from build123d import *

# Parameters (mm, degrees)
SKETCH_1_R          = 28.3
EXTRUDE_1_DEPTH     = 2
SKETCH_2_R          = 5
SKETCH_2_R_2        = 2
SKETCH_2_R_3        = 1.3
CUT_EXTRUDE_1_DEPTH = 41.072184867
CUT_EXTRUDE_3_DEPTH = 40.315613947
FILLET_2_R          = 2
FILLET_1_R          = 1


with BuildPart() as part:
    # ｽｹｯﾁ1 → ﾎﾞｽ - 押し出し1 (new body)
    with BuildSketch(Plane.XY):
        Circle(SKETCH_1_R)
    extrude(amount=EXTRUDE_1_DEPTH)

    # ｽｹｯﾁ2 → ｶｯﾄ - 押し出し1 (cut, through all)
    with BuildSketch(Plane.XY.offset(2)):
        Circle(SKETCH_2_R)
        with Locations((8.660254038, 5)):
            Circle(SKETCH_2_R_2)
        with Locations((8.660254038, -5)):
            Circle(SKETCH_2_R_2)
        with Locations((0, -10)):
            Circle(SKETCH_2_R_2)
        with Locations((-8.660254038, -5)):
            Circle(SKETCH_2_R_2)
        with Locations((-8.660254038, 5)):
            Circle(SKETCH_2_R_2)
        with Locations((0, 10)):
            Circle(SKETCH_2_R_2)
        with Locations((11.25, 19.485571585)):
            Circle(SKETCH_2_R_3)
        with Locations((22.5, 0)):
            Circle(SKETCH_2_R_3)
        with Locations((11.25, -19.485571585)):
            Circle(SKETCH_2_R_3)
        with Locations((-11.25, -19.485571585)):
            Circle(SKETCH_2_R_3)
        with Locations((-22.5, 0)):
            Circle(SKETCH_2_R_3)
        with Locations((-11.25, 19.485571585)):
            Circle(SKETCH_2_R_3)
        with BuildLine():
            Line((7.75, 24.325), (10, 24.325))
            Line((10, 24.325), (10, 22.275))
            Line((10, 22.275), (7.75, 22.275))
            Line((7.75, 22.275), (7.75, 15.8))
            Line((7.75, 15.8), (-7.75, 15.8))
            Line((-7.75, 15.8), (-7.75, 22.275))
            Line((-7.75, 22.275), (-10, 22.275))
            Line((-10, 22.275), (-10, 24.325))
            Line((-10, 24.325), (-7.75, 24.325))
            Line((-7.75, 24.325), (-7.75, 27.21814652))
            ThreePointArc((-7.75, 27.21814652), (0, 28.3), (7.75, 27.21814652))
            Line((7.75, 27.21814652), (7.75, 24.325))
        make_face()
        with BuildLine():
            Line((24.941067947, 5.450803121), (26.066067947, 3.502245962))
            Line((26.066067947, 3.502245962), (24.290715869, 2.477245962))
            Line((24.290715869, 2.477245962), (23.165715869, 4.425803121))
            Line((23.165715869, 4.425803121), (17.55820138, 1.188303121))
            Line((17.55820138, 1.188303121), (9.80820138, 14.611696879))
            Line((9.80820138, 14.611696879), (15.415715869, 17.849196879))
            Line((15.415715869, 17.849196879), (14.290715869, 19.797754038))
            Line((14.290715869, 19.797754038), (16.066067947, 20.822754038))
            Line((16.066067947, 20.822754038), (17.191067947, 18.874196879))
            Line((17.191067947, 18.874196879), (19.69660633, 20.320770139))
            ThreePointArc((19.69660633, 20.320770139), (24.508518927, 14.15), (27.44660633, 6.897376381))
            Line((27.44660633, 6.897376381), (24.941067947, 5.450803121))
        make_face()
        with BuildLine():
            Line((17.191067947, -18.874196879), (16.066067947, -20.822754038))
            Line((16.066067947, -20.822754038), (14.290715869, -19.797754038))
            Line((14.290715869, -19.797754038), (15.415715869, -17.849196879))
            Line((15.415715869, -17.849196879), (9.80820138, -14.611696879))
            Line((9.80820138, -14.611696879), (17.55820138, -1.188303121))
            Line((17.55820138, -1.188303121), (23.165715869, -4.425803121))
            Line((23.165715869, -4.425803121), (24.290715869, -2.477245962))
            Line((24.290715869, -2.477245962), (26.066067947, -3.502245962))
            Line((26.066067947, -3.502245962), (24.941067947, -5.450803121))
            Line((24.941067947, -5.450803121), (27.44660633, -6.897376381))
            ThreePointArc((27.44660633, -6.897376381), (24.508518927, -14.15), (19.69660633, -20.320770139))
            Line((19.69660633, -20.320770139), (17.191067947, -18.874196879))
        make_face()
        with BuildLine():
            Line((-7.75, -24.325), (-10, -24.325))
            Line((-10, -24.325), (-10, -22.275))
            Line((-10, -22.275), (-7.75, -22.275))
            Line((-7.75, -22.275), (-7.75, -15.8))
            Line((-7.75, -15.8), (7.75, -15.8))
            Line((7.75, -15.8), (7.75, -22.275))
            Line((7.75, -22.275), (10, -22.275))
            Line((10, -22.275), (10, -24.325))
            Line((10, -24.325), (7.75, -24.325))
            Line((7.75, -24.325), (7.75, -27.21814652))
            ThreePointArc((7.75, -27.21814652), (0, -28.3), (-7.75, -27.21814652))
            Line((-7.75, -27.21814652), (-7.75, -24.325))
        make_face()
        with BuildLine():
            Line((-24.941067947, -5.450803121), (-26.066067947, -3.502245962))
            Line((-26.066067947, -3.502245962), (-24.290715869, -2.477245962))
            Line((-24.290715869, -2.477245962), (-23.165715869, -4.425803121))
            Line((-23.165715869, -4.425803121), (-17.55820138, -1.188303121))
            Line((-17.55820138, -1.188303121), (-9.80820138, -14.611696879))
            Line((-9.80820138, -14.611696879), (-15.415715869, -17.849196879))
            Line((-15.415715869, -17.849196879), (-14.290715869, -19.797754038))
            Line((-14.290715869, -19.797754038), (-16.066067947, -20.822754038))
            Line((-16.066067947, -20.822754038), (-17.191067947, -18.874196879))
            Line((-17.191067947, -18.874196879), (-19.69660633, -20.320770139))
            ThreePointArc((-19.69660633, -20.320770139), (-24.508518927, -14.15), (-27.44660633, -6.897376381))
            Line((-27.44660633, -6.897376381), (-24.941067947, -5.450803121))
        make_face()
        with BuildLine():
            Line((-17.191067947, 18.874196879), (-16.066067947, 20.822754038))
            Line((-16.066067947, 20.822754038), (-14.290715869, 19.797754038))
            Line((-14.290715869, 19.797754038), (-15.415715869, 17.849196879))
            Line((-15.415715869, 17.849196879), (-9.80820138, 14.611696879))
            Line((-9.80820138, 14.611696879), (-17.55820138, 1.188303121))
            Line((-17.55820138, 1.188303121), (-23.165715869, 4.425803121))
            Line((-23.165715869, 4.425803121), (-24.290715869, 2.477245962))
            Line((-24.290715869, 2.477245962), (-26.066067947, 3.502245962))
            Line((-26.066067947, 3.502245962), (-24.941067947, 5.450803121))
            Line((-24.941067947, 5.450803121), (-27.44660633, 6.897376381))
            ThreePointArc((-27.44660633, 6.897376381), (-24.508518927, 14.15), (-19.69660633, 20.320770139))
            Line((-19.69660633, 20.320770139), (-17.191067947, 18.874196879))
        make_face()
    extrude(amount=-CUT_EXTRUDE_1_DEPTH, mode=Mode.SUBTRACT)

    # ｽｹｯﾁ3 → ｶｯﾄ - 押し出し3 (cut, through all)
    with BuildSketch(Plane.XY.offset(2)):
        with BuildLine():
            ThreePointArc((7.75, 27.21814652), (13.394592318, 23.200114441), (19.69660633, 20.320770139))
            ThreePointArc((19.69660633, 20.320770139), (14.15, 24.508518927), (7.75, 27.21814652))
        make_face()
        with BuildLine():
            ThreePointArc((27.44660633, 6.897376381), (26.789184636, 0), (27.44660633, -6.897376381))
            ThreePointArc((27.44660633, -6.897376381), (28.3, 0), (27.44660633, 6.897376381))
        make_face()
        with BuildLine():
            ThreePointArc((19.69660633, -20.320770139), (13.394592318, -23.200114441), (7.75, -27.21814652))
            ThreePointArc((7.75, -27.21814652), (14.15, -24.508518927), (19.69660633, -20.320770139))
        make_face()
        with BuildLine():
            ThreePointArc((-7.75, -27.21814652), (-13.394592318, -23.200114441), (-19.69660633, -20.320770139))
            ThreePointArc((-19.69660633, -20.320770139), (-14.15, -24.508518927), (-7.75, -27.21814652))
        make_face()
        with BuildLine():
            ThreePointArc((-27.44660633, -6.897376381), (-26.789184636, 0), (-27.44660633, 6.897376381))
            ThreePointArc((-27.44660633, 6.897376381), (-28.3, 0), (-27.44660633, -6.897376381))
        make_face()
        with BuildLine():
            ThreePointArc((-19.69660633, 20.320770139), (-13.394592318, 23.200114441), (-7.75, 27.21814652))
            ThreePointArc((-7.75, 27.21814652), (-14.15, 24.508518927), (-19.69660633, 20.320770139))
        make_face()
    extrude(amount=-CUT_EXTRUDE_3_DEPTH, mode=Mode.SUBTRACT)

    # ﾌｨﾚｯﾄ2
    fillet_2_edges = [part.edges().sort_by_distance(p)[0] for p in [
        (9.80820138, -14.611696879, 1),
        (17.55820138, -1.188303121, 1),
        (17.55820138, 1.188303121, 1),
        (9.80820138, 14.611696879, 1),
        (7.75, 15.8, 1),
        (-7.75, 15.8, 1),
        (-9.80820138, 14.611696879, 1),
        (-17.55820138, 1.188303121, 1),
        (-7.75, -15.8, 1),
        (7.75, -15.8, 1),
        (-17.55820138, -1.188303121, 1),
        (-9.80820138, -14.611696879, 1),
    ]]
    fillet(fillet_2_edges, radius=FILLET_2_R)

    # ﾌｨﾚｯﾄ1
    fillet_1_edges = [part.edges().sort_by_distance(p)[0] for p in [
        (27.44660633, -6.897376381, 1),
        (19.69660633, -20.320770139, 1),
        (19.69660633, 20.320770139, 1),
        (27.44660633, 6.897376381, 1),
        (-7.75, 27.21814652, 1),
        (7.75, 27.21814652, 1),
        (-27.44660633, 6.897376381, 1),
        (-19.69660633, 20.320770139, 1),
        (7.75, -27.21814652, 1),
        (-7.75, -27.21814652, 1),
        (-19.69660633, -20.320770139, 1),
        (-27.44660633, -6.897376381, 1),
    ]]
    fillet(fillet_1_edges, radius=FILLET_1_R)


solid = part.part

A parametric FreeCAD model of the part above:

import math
import FreeCAD as App
import Part
import Sketcher

V = App.Vector
Q = App.Units.Quantity


def edges_at(feature, points):
    """Names of the edges that pass closest to the given points."""
    edges = feature.Shape.Edges
    near = lambda p: min(range(len(edges)), key=lambda i: edges[i].distToShape(Part.Vertex(*p))[0])
    return sorted({f"Edge{near(p) + 1}" for p in points})

doc = App.newDocument("Part")
body = doc.addObject("PartDesign::Body", "Body")

# Sketch on XY plane
sketch1 = doc.addObject("Sketcher::SketchObject", "Sketch")
body.addObject(sketch1)
sketch1.AttachmentSupport = (doc.XY_Plane, [""])
sketch1.MapMode = "FlatFace"
sketch1.addGeometry(Part.Circle(V(0, 0, 0), V(0, 0, 1), 28.3), False)
sketch1.addConstraint([
    Sketcher.Constraint("Coincident", 0, 3, -1, 1),
    Sketcher.Constraint("Diameter", 0, 56.6),
])
pad1 = doc.addObject("PartDesign::Pad", "Pad")
body.addObject(pad1)
pad1.Profile = sketch1
pad1.Length = 2

# Sketch on XY plane
sketch2 = doc.addObject("Sketcher::SketchObject", "Sketch001")
body.addObject(sketch2)
sketch2.AttachmentSupport = (doc.XY_Plane, [""])
sketch2.MapMode = "FlatFace"
sketch2.AttachmentOffset = App.Placement(V(0, 0, 2), App.Rotation())
sketch2.addGeometry([
    Part.Circle(V(0, 0, 0), V(0, 0, 1), 5),  # 0
    Part.Circle(V(8.660254, 5, 0), V(0, 0, 1), 2),  # 1
    Part.Circle(V(8.660254, -5, 0), V(0, 0, 1), 2),  # 2
    Part.Circle(V(0, -10, 0), V(0, 0, 1), 2),  # 3
    Part.Circle(V(-8.660254, -5, 0), V(0, 0, 1), 2),  # 4
    Part.Circle(V(-8.660254, 5, 0), V(0, 0, 1), 2),  # 5
    Part.Circle(V(0, 10, 0), V(0, 0, 1), 2),  # 6
    Part.Circle(V(11.25, 19.485572, 0), V(0, 0, 1), 1.3),  # 7
    Part.Circle(V(22.5, 0, 0), V(0, 0, 1), 1.3),  # 8
    Part.Circle(V(11.25, -19.485572, 0), V(0, 0, 1), 1.3),  # 9
    Part.Circle(V(-11.25, -19.485572, 0), V(0, 0, 1), 1.3),  # 10
    Part.Circle(V(-22.5, 0, 0), V(0, 0, 1), 1.3),  # 11
    Part.Circle(V(-11.25, 19.485572, 0), V(0, 0, 1), 1.3),  # 12
    Part.LineSegment(V(10, 24.325, 0), V(7.75, 24.325, 0)),  # 13
    Part.LineSegment(V(7.75, 24.325, 0), V(7.75, 27.218147, 0)),  # 14
    Part.ArcOfCircle(Part.Circle(V(0, 0, 0), V(0, 0, 1), 28.3), math.radians(74.106412), math.radians(105.893588)),  # 15
    Part.LineSegment(V(-7.75, 27.218147, 0), V(-7.75, 24.325, 0)),  # 16
    Part.LineSegment(V(-7.75, 24.325, 0), V(-10, 24.325, 0)),  # 17
    Part.LineSegment(V(-10, 24.325, 0), V(-10, 22.275, 0)),  # 18
    Part.LineSegment(V(-10, 22.275, 0), V(-7.75, 22.275, 0)),  # 19
    Part.LineSegment(V(-7.75, 22.275, 0), V(-7.75, 15.8, 0)),  # 20
    Part.LineSegment(V(-7.75, 15.8, 0), V(7.75, 15.8, 0)),  # 21
    Part.LineSegment(V(7.75, 15.8, 0), V(7.75, 22.275, 0)),  # 22
    Part.LineSegment(V(7.75, 22.275, 0), V(10, 22.275, 0)),  # 23
    Part.LineSegment(V(10, 22.275, 0), V(10, 24.325, 0)),  # 24
    Part.LineSegment(V(26.066068, 3.502246, 0), V(24.941068, 5.450803, 0)),  # 25
    Part.LineSegment(V(24.941068, 5.450803, 0), V(27.446606, 6.897376, 0)),  # 26
    Part.ArcOfCircle(Part.Circle(V(0, 0, 0), V(0, 0, 1), 28.3), math.radians(14.106412), math.radians(45.893588)),  # 27
    Part.LineSegment(V(19.696606, 20.32077, 0), V(17.191068, 18.874197, 0)),  # 28
    Part.LineSegment(V(17.191068, 18.874197, 0), V(16.066068, 20.822754, 0)),  # 29
    Part.LineSegment(V(16.066068, 20.822754, 0), V(14.290716, 19.797754, 0)),  # 30
    Part.LineSegment(V(14.290716, 19.797754, 0), V(15.415716, 17.849197, 0)),  # 31
    Part.LineSegment(V(15.415716, 17.849197, 0), V(9.808201, 14.611697, 0)),  # 32
    Part.LineSegment(V(9.808201, 14.611697, 0), V(17.558201, 1.188303, 0)),  # 33
    Part.LineSegment(V(17.558201, 1.188303, 0), V(23.165716, 4.425803, 0)),  # 34
    Part.LineSegment(V(23.165716, 4.425803, 0), V(24.290716, 2.477246, 0)),  # 35
    Part.LineSegment(V(24.290716, 2.477246, 0), V(26.066068, 3.502246, 0)),  # 36
    Part.LineSegment(V(16.066068, -20.822754, 0), V(17.191068, -18.874197, 0)),  # 37
    Part.LineSegment(V(17.191068, -18.874197, 0), V(19.696606, -20.32077, 0)),  # 38
    Part.ArcOfCircle(Part.Circle(V(0, 0, 0), V(0, 0, 1), 28.3), math.radians(-45.893588), math.radians(-14.106412)),  # 39
    Part.LineSegment(V(27.446606, -6.897376, 0), V(24.941068, -5.450803, 0)),  # 40
    Part.LineSegment(V(24.941068, -5.450803, 0), V(26.066068, -3.502246, 0)),  # 41
    Part.LineSegment(V(26.066068, -3.502246, 0), V(24.290716, -2.477246, 0)),  # 42
    Part.LineSegment(V(24.290716, -2.477246, 0), V(23.165716, -4.425803, 0)),  # 43
    Part.LineSegment(V(23.165716, -4.425803, 0), V(17.558201, -1.188303, 0)),  # 44
    Part.LineSegment(V(17.558201, -1.188303, 0), V(9.808201, -14.611697, 0)),  # 45
    Part.LineSegment(V(9.808201, -14.611697, 0), V(15.415716, -17.849197, 0)),  # 46
    Part.LineSegment(V(15.415716, -17.849197, 0), V(14.290716, -19.797754, 0)),  # 47
    Part.LineSegment(V(14.290716, -19.797754, 0), V(16.066068, -20.822754, 0)),  # 48
    Part.LineSegment(V(-10, -24.325, 0), V(-7.75, -24.325, 0)),  # 49
    Part.LineSegment(V(-7.75, -24.325, 0), V(-7.75, -27.218147, 0)),  # 50
    Part.ArcOfCircle(Part.Circle(V(0, 0, 0), V(0, 0, 1), 28.3), math.radians(-105.893588), math.radians(-74.106412)),  # 51
    Part.LineSegment(V(7.75, -27.218147, 0), V(7.75, -24.325, 0)),  # 52
    Part.LineSegment(V(7.75, -24.325, 0), V(10, -24.325, 0)),  # 53
    Part.LineSegment(V(10, -24.325, 0), V(10, -22.275, 0)),  # 54
    Part.LineSegment(V(10, -22.275, 0), V(7.75, -22.275, 0)),  # 55
    Part.LineSegment(V(7.75, -22.275, 0), V(7.75, -15.8, 0)),  # 56
    Part.LineSegment(V(7.75, -15.8, 0), V(-7.75, -15.8, 0)),  # 57
    Part.LineSegment(V(-7.75, -15.8, 0), V(-7.75, -22.275, 0)),  # 58
    Part.LineSegment(V(-7.75, -22.275, 0), V(-10, -22.275, 0)),  # 59
    Part.LineSegment(V(-10, -22.275, 0), V(-10, -24.325, 0)),  # 60
    Part.LineSegment(V(-26.066068, -3.502246, 0), V(-24.941068, -5.450803, 0)),  # 61
    Part.LineSegment(V(-24.941068, -5.450803, 0), V(-27.446606, -6.897376, 0)),  # 62
    Part.ArcOfCircle(Part.Circle(V(0, 0, 0), V(0, 0, 1), 28.3), math.radians(-165.893588), math.radians(-134.106412)),  # 63
    Part.LineSegment(V(-19.696606, -20.32077, 0), V(-17.191068, -18.874197, 0)),  # 64
    Part.LineSegment(V(-17.191068, -18.874197, 0), V(-16.066068, -20.822754, 0)),  # 65
    Part.LineSegment(V(-16.066068, -20.822754, 0), V(-14.290716, -19.797754, 0)),  # 66
    Part.LineSegment(V(-14.290716, -19.797754, 0), V(-15.415716, -17.849197, 0)),  # 67
    Part.LineSegment(V(-15.415716, -17.849197, 0), V(-9.808201, -14.611697, 0)),  # 68
    Part.LineSegment(V(-9.808201, -14.611697, 0), V(-17.558201, -1.188303, 0)),  # 69
    Part.LineSegment(V(-17.558201, -1.188303, 0), V(-23.165716, -4.425803, 0)),  # 70
    Part.LineSegment(V(-23.165716, -4.425803, 0), V(-24.290716, -2.477246, 0)),  # 71
    Part.LineSegment(V(-24.290716, -2.477246, 0), V(-26.066068, -3.502246, 0)),  # 72
    Part.LineSegment(V(-16.066068, 20.822754, 0), V(-17.191068, 18.874197, 0)),  # 73
    Part.LineSegment(V(-17.191068, 18.874197, 0), V(-19.696606, 20.32077, 0)),  # 74
    Part.ArcOfCircle(Part.Circle(V(0, 0, 0), V(0, 0, 1), 28.3), math.radians(134.106412), math.radians(165.893588)),  # 75
    Part.LineSegment(V(-27.446606, 6.897376, 0), V(-24.941068, 5.450803, 0)),  # 76
    Part.LineSegment(V(-24.941068, 5.450803, 0), V(-26.066068, 3.502246, 0)),  # 77
    Part.LineSegment(V(-26.066068, 3.502246, 0), V(-24.290716, 2.477246, 0)),  # 78
    Part.LineSegment(V(-24.290716, 2.477246, 0), V(-23.165716, 4.425803, 0)),  # 79
    Part.LineSegment(V(-23.165716, 4.425803, 0), V(-17.558201, 1.188303, 0)),  # 80
    Part.LineSegment(V(-17.558201, 1.188303, 0), V(-9.808201, 14.611697, 0)),  # 81
    Part.LineSegment(V(-9.808201, 14.611697, 0), V(-15.415716, 17.849197, 0)),  # 82
    Part.LineSegment(V(-15.415716, 17.849197, 0), V(-14.290716, 19.797754, 0)),  # 83
    Part.LineSegment(V(-14.290716, 19.797754, 0), V(-16.066068, 20.822754, 0)),  # 84
], False)
sketch2.addConstraint([
    Sketcher.Constraint("Coincident", 13, 2, 14, 1),
    Sketcher.Constraint("Coincident", 14, 2, 15, 1),
    Sketcher.Constraint("Coincident", 15, 2, 16, 1),
    Sketcher.Constraint("Coincident", 16, 2, 17, 1),
    Sketcher.Constraint("Coincident", 17, 2, 18, 1),
    Sketcher.Constraint("Coincident", 18, 2, 19, 1),
    Sketcher.Constraint("Coincident", 19, 2, 20, 1),
    Sketcher.Constraint("Coincident", 20, 2, 21, 1),
    Sketcher.Constraint("Coincident", 21, 2, 22, 1),
    Sketcher.Constraint("Coincident", 22, 2, 23, 1),
    Sketcher.Constraint("Coincident", 23, 2, 24, 1),
    Sketcher.Constraint("Coincident", 24, 2, 13, 1),
    Sketcher.Constraint("Coincident", 25, 2, 26, 1),
    Sketcher.Constraint("Coincident", 26, 2, 27, 1),
    Sketcher.Constraint("Coincident", 27, 2, 28, 1),
    Sketcher.Constraint("Coincident", 28, 2, 29, 1),
    Sketcher.Constraint("Coincident", 29, 2, 30, 1),
    Sketcher.Constraint("Coincident", 30, 2, 31, 1),
    Sketcher.Constraint("Coincident", 31, 2, 32, 1),
    Sketcher.Constraint("Coincident", 32, 2, 33, 1),
    Sketcher.Constraint("Coincident", 33, 2, 34, 1),
    Sketcher.Constraint("Coincident", 34, 2, 35, 1),
    Sketcher.Constraint("Coincident", 35, 2, 36, 1),
    Sketcher.Constraint("Coincident", 36, 2, 25, 1),
    Sketcher.Constraint("Coincident", 37, 2, 38, 1),
    Sketcher.Constraint("Coincident", 38, 2, 39, 1),
    Sketcher.Constraint("Coincident", 39, 2, 40, 1),
    Sketcher.Constraint("Coincident", 40, 2, 41, 1),
    Sketcher.Constraint("Coincident", 41, 2, 42, 1),
    Sketcher.Constraint("Coincident", 42, 2, 43, 1),
    Sketcher.Constraint("Coincident", 43, 2, 44, 1),
    Sketcher.Constraint("Coincident", 44, 2, 45, 1),
    Sketcher.Constraint("Coincident", 45, 2, 46, 1),
    Sketcher.Constraint("Coincident", 46, 2, 47, 1),
    Sketcher.Constraint("Coincident", 47, 2, 48, 1),
    Sketcher.Constraint("Coincident", 48, 2, 37, 1),
    Sketcher.Constraint("Coincident", 49, 2, 50, 1),
    Sketcher.Constraint("Coincident", 50, 2, 51, 1),
    Sketcher.Constraint("Coincident", 51, 2, 52, 1),
    Sketcher.Constraint("Coincident", 52, 2, 53, 1),
    Sketcher.Constraint("Coincident", 53, 2, 54, 1),
    Sketcher.Constraint("Coincident", 54, 2, 55, 1),
    Sketcher.Constraint("Coincident", 55, 2, 56, 1),
    Sketcher.Constraint("Coincident", 56, 2, 57, 1),
    Sketcher.Constraint("Coincident", 57, 2, 58, 1),
    Sketcher.Constraint("Coincident", 58, 2, 59, 1),
    Sketcher.Constraint("Coincident", 59, 2, 60, 1),
    Sketcher.Constraint("Coincident", 60, 2, 49, 1),
    Sketcher.Constraint("Coincident", 61, 2, 62, 1),
    Sketcher.Constraint("Coincident", 62, 2, 63, 1),
    Sketcher.Constraint("Coincident", 63, 2, 64, 1),
    Sketcher.Constraint("Coincident", 64, 2, 65, 1),
    Sketcher.Constraint("Coincident", 65, 2, 66, 1),
    Sketcher.Constraint("Coincident", 66, 2, 67, 1),
    Sketcher.Constraint("Coincident", 67, 2, 68, 1),
    Sketcher.Constraint("Coincident", 68, 2, 69, 1),
    Sketcher.Constraint("Coincident", 69, 2, 70, 1),
    Sketcher.Constraint("Coincident", 70, 2, 71, 1),
    Sketcher.Constraint("Coincident", 71, 2, 72, 1),
    Sketcher.Constraint("Coincident", 72, 2, 61, 1),
    Sketcher.Constraint("Coincident", 73, 2, 74, 1),
    Sketcher.Constraint("Coincident", 74, 2, 75, 1),
    Sketcher.Constraint("Coincident", 75, 2, 76, 1),
    Sketcher.Constraint("Coincident", 76, 2, 77, 1),
    Sketcher.Constraint("Coincident", 77, 2, 78, 1),
    Sketcher.Constraint("Coincident", 78, 2, 79, 1),
    Sketcher.Constraint("Coincident", 79, 2, 80, 1),
    Sketcher.Constraint("Coincident", 80, 2, 81, 1),
    Sketcher.Constraint("Coincident", 81, 2, 82, 1),
    Sketcher.Constraint("Coincident", 82, 2, 83, 1),
    Sketcher.Constraint("Coincident", 83, 2, 84, 1),
    Sketcher.Constraint("Coincident", 84, 2, 73, 1),
    Sketcher.Constraint("Horizontal", 13),
    Sketcher.Constraint("Vertical", 14),
    Sketcher.Constraint("Vertical", 16),
    Sketcher.Constraint("Horizontal", 17),
    Sketcher.Constraint("Vertical", 18),
    Sketcher.Constraint("Horizontal", 19),
    Sketcher.Constraint("Vertical", 20),
    Sketcher.Constraint("Horizontal", 21),
    Sketcher.Constraint("Vertical", 22),
    Sketcher.Constraint("Horizontal", 23),
    Sketcher.Constraint("Vertical", 24),
    Sketcher.Constraint("Horizontal", 49),
    Sketcher.Constraint("Vertical", 50),
    Sketcher.Constraint("Vertical", 52),
    Sketcher.Constraint("Horizontal", 53),
    Sketcher.Constraint("Vertical", 54),
    Sketcher.Constraint("Horizontal", 55),
    Sketcher.Constraint("Vertical", 56),
    Sketcher.Constraint("Horizontal", 57),
    Sketcher.Constraint("Vertical", 58),
    Sketcher.Constraint("Horizontal", 59),
    Sketcher.Constraint("Vertical", 60),
    Sketcher.Constraint("Coincident", 0, 3, -1, 1),
    Sketcher.Constraint("Coincident", 15, 3, -1, 1),
    Sketcher.Constraint("Coincident", 27, 3, -1, 1),
    Sketcher.Constraint("Coincident", 39, 3, -1, 1),
    Sketcher.Constraint("Coincident", 51, 3, -1, 1),
    Sketcher.Constraint("Coincident", 63, 3, -1, 1),
    Sketcher.Constraint("Coincident", 75, 3, -1, 1),
    Sketcher.Constraint("Equal", 1, 2),
    Sketcher.Constraint("Equal", 2, 3),
    Sketcher.Constraint("Equal", 3, 4),
    Sketcher.Constraint("Equal", 4, 5),
    Sketcher.Constraint("Equal", 5, 6),
    Sketcher.Constraint("Equal", 7, 8),
    Sketcher.Constraint("Equal", 8, 9),
    Sketcher.Constraint("Equal", 9, 10),
    Sketcher.Constraint("Equal", 10, 11),
    Sketcher.Constraint("Equal", 11, 12),
    Sketcher.Constraint("Equal", 15, 27),
    Sketcher.Constraint("Equal", 27, 39),
    Sketcher.Constraint("Equal", 39, 51),
    Sketcher.Constraint("Equal", 51, 63),
    Sketcher.Constraint("Equal", 63, 75),
    Sketcher.Constraint("Symmetric", 1, 3, 4, 3, -1, 1),
    Sketcher.Constraint("Symmetric", 2, 3, 5, 3, -1, 1),
    Sketcher.Constraint("Symmetric", 3, 3, 6, 3, -1, 1),
    Sketcher.Constraint("Symmetric", 7, 3, 10, 3, -1, 1),
    Sketcher.Constraint("Symmetric", 8, 3, 11, 3, -1, 1),
    Sketcher.Constraint("Symmetric", 9, 3, 12, 3, -1, 1),
    Sketcher.Constraint("Symmetric", 13, 2, 49, 2, -1, 1),
    Sketcher.Constraint("Symmetric", 16, 2, 52, 2, -1, 1),
    Sketcher.Constraint("Symmetric", 18, 2, 54, 2, -1, 1),
    Sketcher.Constraint("Symmetric", 20, 2, 56, 2, -1, 1),
    Sketcher.Constraint("Symmetric", 22, 2, 58, 2, -1, 1),
    Sketcher.Constraint("Symmetric", 25, 2, 61, 2, -1, 1),
    Sketcher.Constraint("Symmetric", 28, 2, 64, 2, -1, 1),
    Sketcher.Constraint("Symmetric", 29, 2, 65, 2, -1, 1),
    Sketcher.Constraint("Symmetric", 30, 2, 66, 2, -1, 1),
    Sketcher.Constraint("Symmetric", 31, 2, 67, 2, -1, 1),
    Sketcher.Constraint("Symmetric", 32, 2, 68, 2, -1, 1),
    Sketcher.Constraint("Symmetric", 33, 2, 69, 2, -1, 1),
    Sketcher.Constraint("Symmetric", 34, 2, 70, 2, -1, 1),
    Sketcher.Constraint("Symmetric", 35, 2, 71, 2, -1, 1),
    Sketcher.Constraint("Symmetric", 36, 2, 72, 2, -1, 1),
    Sketcher.Constraint("Symmetric", 37, 2, 73, 2, -1, 1),
    Sketcher.Constraint("Symmetric", 40, 2, 76, 2, -1, 1),
    Sketcher.Constraint("Symmetric", 41, 2, 77, 2, -1, 1),
    Sketcher.Constraint("Symmetric", 42, 2, 78, 2, -1, 1),
    Sketcher.Constraint("Symmetric", 43, 2, 79, 2, -1, 1),
    Sketcher.Constraint("Symmetric", 44, 2, 80, 2, -1, 1),
    Sketcher.Constraint("Symmetric", 45, 2, 81, 2, -1, 1),
    Sketcher.Constraint("Symmetric", 46, 2, 82, 2, -1, 1),
    Sketcher.Constraint("Symmetric", 47, 2, 83, 2, -1, 1),
    Sketcher.Constraint("Symmetric", 48, 2, 84, 2, -1, 1),
    Sketcher.Constraint("Symmetric", 2, 3, 4, 3, -2),
    Sketcher.Constraint("Symmetric", 9, 3, 10, 3, -2),
    Sketcher.Constraint("Symmetric", 13, 2, 16, 2, -2),
    Sketcher.Constraint("Symmetric", 19, 2, 22, 2, -2),
    Sketcher.Constraint("Symmetric", 40, 2, 61, 2, -2),
    Sketcher.Constraint("Symmetric", 37, 2, 64, 2, -2),
    Sketcher.Constraint("Symmetric", 48, 2, 65, 2, -2),
    Sketcher.Constraint("Symmetric", 47, 2, 66, 2, -2),
    Sketcher.Constraint("Symmetric", 46, 2, 67, 2, -2),
    Sketcher.Constraint("Symmetric", 45, 2, 68, 2, -2),
    Sketcher.Constraint("Symmetric", 44, 2, 69, 2, -2),
    Sketcher.Constraint("Symmetric", 43, 2, 70, 2, -2),
    Sketcher.Constraint("Symmetric", 42, 2, 71, 2, -2),
    Sketcher.Constraint("Symmetric", 41, 2, 72, 2, -2),
    Sketcher.Constraint("PointOnObject", 3, 3, -2),
    Sketcher.Constraint("PointOnObject", 8, 3, -1),
    Sketcher.Constraint("Perpendicular", 25, 26),
    Sketcher.Constraint("Parallel", 26, 28),
    Sketcher.Constraint("Perpendicular", 28, 29),
    Sketcher.Constraint("Perpendicular", 29, 30),
    Sketcher.Constraint("Perpendicular", 30, 31),
    Sketcher.Constraint("Perpendicular", 31, 32),
    Sketcher.Constraint("Perpendicular", 32, 33),
    Sketcher.Constraint("Perpendicular", 33, 34),
    Sketcher.Constraint("Perpendicular", 34, 35),
    Sketcher.Constraint("Perpendicular", 35, 36),
    Sketcher.Constraint("Perpendicular", 37, 38),
    Sketcher.Constraint("Parallel", 38, 40),
    Sketcher.Constraint("Perpendicular", 61, 62),
    Sketcher.Constraint("Parallel", 62, 64),
    Sketcher.Constraint("Perpendicular", 73, 74),
    Sketcher.Constraint("Parallel", 74, 76),
    Sketcher.Constraint("Vertical", 16, 2, 19, 2),
    Sketcher.Constraint("Vertical", 24, 2, 53, 2),
    Sketcher.Constraint("Vertical", 18, 2, 59, 2),
    Sketcher.Constraint("Equal", 26, 28),
    Sketcher.Constraint("Equal", 25, 29),
    Sketcher.Constraint("Equal", 29, 31),
    Sketcher.Constraint("Equal", 32, 34),
    Sketcher.Constraint("Equal", 31, 35),
    Sketcher.Constraint("Equal", 30, 36),
    Sketcher.Constraint("Diameter", 0, 10.0),
    Sketcher.Constraint("Diameter", 1, 4.0),
    Sketcher.Constraint("Diameter", 7, 2.6),
    Sketcher.Constraint("Radius", 15, 28.3),
    Sketcher.Constraint("Angle", 25, Q("120 deg")),
    Sketcher.Constraint("DistanceX", 21, 1, 21, 2, 15.5),
    Sketcher.Constraint("DistanceY", -1, 1, 1, 3, 5.0),
    Sketcher.Constraint("DistanceY", 3, 3, -1, 1, 10.0),
    Sketcher.Constraint("DistanceX", 17, 2, -1, 1, 10.0),
    Sketcher.Constraint("Distance", 33, 15.5),
    Sketcher.Constraint("DistanceY", 18, 2, 18, 1, 2.05),
    Sketcher.Constraint("DistanceX", -1, 1, 8, 3, 22.5),
    Sketcher.Constraint("DistanceY", -1, 1, 20, 2, 15.8),
    Sketcher.Constraint("Distance", 25, 2.25),
    Sketcher.Constraint("Distance", 30, 2.05),
    Sketcher.Constraint("DistanceY", 20, 2, 20, 1, 6.475),
    Sketcher.Constraint("DistanceX", -1, 1, 7, 3, 11.25),
    Sketcher.Constraint("Distance", 32, 6.475),
    Sketcher.Constraint("DistanceX", -1, 1, 32, 2, 9.808201),
    Sketcher.Constraint("DistanceY", -1, 1, 7, 3, 19.485572),
    Sketcher.Constraint("DistanceX", -1, 1, 1, 3, 8.660254),
])
pocket1 = doc.addObject("PartDesign::Pocket", "Pocket")
body.addObject(pocket1)
pocket1.Profile = sketch2
pocket1.Type = "ThroughAll"

# Sketch on XY plane
sketch3 = doc.addObject("Sketcher::SketchObject", "Sketch002")
body.addObject(sketch3)
sketch3.AttachmentSupport = (doc.XY_Plane, [""])
sketch3.MapMode = "FlatFace"
sketch3.AttachmentOffset = App.Placement(V(0, 0, 2), App.Rotation())
sketch3.addGeometry([
    Part.ArcOfCircle(Part.Circle(V(31.65, 54.819408, 0), V(0, 0, 1), 36.510815), math.radians(-130.889369), math.radians(-109.110631)),  # 0
    Part.ArcOfCircle(Part.Circle(V(0, 0, 0), V(0, 0, 1), 28.3), math.radians(45.893588), math.radians(74.106412)),  # 1
    Part.ArcOfCircle(Part.Circle(V(63.3, 0, 0), V(0, 0, 1), 36.510815), math.radians(169.110631), math.radians(190.889369)),  # 2
    Part.ArcOfCircle(Part.Circle(V(0, 0, 0), V(0, 0, 1), 28.3), math.radians(-14.106412), math.radians(14.106412)),  # 3
    Part.ArcOfCircle(Part.Circle(V(31.65, -54.819408, 0), V(0, 0, 1), 36.510815), math.radians(109.110631), math.radians(130.889369)),  # 4
    Part.ArcOfCircle(Part.Circle(V(0, 0, 0), V(0, 0, 1), 28.3), math.radians(-74.106412), math.radians(-45.893588)),  # 5
    Part.ArcOfCircle(Part.Circle(V(-31.65, -54.819408, 0), V(0, 0, 1), 36.510815), math.radians(49.110631), math.radians(70.889369)),  # 6
    Part.ArcOfCircle(Part.Circle(V(0, 0, 0), V(0, 0, 1), 28.3), math.radians(-134.106412), math.radians(-105.893588)),  # 7
    Part.ArcOfCircle(Part.Circle(V(-63.3, 0, 0), V(0, 0, 1), 36.510815), math.radians(-10.889369), math.radians(10.889369)),  # 8
    Part.ArcOfCircle(Part.Circle(V(0, 0, 0), V(0, 0, 1), 28.3), math.radians(165.893588), math.radians(194.106412)),  # 9
    Part.ArcOfCircle(Part.Circle(V(-31.65, 54.819408, 0), V(0, 0, 1), 36.510815), math.radians(-70.889369), math.radians(-49.110631)),  # 10
    Part.ArcOfCircle(Part.Circle(V(0, 0, 0), V(0, 0, 1), 28.3), math.radians(105.893588), math.radians(134.106412)),  # 11
], False)
sketch3.addConstraint([
    Sketcher.Constraint("Coincident", 0, 1, 1, 2),
    Sketcher.Constraint("Coincident", 1, 1, 0, 2),
    Sketcher.Constraint("Coincident", 2, 1, 3, 2),
    Sketcher.Constraint("Coincident", 3, 1, 2, 2),
    Sketcher.Constraint("Coincident", 4, 1, 5, 2),
    Sketcher.Constraint("Coincident", 5, 1, 4, 2),
    Sketcher.Constraint("Coincident", 6, 1, 7, 2),
    Sketcher.Constraint("Coincident", 7, 1, 6, 2),
    Sketcher.Constraint("Coincident", 8, 1, 9, 2),
    Sketcher.Constraint("Coincident", 9, 1, 8, 2),
    Sketcher.Constraint("Coincident", 10, 1, 11, 2),
    Sketcher.Constraint("Coincident", 11, 1, 10, 2),
    Sketcher.Constraint("Coincident", 1, 3, -1, 1),
    Sketcher.Constraint("Coincident", 3, 3, -1, 1),
    Sketcher.Constraint("Coincident", 5, 3, -1, 1),
    Sketcher.Constraint("Coincident", 7, 3, -1, 1),
    Sketcher.Constraint("Coincident", 9, 3, -1, 1),
    Sketcher.Constraint("Coincident", 11, 3, -1, 1),
    Sketcher.Constraint("Equal", 0, 2),
    Sketcher.Constraint("Equal", 1, 3),
    Sketcher.Constraint("Equal", 2, 4),
    Sketcher.Constraint("Equal", 3, 5),
    Sketcher.Constraint("Equal", 4, 6),
    Sketcher.Constraint("Equal", 5, 7),
    Sketcher.Constraint("Equal", 6, 8),
    Sketcher.Constraint("Equal", 7, 9),
    Sketcher.Constraint("Equal", 8, 10),
    Sketcher.Constraint("Equal", 9, 11),
    Sketcher.Constraint("Symmetric", 0, 3, 6, 3, -1, 1),
    Sketcher.Constraint("Symmetric", 2, 3, 8, 3, -1, 1),
    Sketcher.Constraint("Symmetric", 4, 3, 10, 3, -1, 1),
    Sketcher.Constraint("Symmetric", 4, 3, 6, 3, -2),
    Sketcher.Constraint("PointOnObject", 2, 3, -1),
    Sketcher.Constraint("Radius", 1, 28.3),
    Sketcher.Constraint("DistanceX", -1, 1, 2, 3, 63.3),
    Sketcher.Constraint("DistanceX", 6, 3, 4, 3, 63.3),
    Sketcher.Constraint("DistanceX", 6, 1, 5, 1, 15.5),
    Sketcher.Constraint("Radius", 0, 36.510815),
])
pocket2 = doc.addObject("PartDesign::Pocket", "Pocket001")
body.addObject(pocket2)
pocket2.Profile = sketch3
pocket2.Type = "ThroughAll"
doc.recompute()

fillet = doc.addObject("PartDesign::Fillet", "Fillet")
body.addObject(fillet)
fillet.Base = (pocket2, edges_at(pocket2, [
    (9.808, -14.612, 1),
    (17.558, -1.188, 1),
    (17.558, 1.188, 1),
    (9.808, 14.612, 1),
    (7.75, 15.8, 1),
    (-7.75, 15.8, 1),
    (-9.808, 14.612, 1),
    (-17.558, 1.188, 1),
    (-7.75, -15.8, 1),
    (7.75, -15.8, 1),
    (-17.558, -1.188, 1),
    (-9.808, -14.612, 1),
]))
fillet.Radius = 2
doc.recompute()

fillet2 = doc.addObject("PartDesign::Fillet", "Fillet001")
body.addObject(fillet2)
fillet2.Base = (fillet, edges_at(fillet, [
    (27.447, -6.897, 1),
    (19.697, -20.321, 1),
    (19.697, 20.321, 1),
    (27.447, 6.897, 1),
    (-7.75, 27.218, 1),
    (7.75, 27.218, 1),
    (-27.447, 6.897, 1),
    (-19.697, 20.321, 1),
    (7.75, -27.218, 1),
    (-7.75, -27.218, 1),
    (-19.697, -20.321, 1),
    (-27.447, -6.897, 1),
]))
fillet2.Radius = 1

doc.recompute()
